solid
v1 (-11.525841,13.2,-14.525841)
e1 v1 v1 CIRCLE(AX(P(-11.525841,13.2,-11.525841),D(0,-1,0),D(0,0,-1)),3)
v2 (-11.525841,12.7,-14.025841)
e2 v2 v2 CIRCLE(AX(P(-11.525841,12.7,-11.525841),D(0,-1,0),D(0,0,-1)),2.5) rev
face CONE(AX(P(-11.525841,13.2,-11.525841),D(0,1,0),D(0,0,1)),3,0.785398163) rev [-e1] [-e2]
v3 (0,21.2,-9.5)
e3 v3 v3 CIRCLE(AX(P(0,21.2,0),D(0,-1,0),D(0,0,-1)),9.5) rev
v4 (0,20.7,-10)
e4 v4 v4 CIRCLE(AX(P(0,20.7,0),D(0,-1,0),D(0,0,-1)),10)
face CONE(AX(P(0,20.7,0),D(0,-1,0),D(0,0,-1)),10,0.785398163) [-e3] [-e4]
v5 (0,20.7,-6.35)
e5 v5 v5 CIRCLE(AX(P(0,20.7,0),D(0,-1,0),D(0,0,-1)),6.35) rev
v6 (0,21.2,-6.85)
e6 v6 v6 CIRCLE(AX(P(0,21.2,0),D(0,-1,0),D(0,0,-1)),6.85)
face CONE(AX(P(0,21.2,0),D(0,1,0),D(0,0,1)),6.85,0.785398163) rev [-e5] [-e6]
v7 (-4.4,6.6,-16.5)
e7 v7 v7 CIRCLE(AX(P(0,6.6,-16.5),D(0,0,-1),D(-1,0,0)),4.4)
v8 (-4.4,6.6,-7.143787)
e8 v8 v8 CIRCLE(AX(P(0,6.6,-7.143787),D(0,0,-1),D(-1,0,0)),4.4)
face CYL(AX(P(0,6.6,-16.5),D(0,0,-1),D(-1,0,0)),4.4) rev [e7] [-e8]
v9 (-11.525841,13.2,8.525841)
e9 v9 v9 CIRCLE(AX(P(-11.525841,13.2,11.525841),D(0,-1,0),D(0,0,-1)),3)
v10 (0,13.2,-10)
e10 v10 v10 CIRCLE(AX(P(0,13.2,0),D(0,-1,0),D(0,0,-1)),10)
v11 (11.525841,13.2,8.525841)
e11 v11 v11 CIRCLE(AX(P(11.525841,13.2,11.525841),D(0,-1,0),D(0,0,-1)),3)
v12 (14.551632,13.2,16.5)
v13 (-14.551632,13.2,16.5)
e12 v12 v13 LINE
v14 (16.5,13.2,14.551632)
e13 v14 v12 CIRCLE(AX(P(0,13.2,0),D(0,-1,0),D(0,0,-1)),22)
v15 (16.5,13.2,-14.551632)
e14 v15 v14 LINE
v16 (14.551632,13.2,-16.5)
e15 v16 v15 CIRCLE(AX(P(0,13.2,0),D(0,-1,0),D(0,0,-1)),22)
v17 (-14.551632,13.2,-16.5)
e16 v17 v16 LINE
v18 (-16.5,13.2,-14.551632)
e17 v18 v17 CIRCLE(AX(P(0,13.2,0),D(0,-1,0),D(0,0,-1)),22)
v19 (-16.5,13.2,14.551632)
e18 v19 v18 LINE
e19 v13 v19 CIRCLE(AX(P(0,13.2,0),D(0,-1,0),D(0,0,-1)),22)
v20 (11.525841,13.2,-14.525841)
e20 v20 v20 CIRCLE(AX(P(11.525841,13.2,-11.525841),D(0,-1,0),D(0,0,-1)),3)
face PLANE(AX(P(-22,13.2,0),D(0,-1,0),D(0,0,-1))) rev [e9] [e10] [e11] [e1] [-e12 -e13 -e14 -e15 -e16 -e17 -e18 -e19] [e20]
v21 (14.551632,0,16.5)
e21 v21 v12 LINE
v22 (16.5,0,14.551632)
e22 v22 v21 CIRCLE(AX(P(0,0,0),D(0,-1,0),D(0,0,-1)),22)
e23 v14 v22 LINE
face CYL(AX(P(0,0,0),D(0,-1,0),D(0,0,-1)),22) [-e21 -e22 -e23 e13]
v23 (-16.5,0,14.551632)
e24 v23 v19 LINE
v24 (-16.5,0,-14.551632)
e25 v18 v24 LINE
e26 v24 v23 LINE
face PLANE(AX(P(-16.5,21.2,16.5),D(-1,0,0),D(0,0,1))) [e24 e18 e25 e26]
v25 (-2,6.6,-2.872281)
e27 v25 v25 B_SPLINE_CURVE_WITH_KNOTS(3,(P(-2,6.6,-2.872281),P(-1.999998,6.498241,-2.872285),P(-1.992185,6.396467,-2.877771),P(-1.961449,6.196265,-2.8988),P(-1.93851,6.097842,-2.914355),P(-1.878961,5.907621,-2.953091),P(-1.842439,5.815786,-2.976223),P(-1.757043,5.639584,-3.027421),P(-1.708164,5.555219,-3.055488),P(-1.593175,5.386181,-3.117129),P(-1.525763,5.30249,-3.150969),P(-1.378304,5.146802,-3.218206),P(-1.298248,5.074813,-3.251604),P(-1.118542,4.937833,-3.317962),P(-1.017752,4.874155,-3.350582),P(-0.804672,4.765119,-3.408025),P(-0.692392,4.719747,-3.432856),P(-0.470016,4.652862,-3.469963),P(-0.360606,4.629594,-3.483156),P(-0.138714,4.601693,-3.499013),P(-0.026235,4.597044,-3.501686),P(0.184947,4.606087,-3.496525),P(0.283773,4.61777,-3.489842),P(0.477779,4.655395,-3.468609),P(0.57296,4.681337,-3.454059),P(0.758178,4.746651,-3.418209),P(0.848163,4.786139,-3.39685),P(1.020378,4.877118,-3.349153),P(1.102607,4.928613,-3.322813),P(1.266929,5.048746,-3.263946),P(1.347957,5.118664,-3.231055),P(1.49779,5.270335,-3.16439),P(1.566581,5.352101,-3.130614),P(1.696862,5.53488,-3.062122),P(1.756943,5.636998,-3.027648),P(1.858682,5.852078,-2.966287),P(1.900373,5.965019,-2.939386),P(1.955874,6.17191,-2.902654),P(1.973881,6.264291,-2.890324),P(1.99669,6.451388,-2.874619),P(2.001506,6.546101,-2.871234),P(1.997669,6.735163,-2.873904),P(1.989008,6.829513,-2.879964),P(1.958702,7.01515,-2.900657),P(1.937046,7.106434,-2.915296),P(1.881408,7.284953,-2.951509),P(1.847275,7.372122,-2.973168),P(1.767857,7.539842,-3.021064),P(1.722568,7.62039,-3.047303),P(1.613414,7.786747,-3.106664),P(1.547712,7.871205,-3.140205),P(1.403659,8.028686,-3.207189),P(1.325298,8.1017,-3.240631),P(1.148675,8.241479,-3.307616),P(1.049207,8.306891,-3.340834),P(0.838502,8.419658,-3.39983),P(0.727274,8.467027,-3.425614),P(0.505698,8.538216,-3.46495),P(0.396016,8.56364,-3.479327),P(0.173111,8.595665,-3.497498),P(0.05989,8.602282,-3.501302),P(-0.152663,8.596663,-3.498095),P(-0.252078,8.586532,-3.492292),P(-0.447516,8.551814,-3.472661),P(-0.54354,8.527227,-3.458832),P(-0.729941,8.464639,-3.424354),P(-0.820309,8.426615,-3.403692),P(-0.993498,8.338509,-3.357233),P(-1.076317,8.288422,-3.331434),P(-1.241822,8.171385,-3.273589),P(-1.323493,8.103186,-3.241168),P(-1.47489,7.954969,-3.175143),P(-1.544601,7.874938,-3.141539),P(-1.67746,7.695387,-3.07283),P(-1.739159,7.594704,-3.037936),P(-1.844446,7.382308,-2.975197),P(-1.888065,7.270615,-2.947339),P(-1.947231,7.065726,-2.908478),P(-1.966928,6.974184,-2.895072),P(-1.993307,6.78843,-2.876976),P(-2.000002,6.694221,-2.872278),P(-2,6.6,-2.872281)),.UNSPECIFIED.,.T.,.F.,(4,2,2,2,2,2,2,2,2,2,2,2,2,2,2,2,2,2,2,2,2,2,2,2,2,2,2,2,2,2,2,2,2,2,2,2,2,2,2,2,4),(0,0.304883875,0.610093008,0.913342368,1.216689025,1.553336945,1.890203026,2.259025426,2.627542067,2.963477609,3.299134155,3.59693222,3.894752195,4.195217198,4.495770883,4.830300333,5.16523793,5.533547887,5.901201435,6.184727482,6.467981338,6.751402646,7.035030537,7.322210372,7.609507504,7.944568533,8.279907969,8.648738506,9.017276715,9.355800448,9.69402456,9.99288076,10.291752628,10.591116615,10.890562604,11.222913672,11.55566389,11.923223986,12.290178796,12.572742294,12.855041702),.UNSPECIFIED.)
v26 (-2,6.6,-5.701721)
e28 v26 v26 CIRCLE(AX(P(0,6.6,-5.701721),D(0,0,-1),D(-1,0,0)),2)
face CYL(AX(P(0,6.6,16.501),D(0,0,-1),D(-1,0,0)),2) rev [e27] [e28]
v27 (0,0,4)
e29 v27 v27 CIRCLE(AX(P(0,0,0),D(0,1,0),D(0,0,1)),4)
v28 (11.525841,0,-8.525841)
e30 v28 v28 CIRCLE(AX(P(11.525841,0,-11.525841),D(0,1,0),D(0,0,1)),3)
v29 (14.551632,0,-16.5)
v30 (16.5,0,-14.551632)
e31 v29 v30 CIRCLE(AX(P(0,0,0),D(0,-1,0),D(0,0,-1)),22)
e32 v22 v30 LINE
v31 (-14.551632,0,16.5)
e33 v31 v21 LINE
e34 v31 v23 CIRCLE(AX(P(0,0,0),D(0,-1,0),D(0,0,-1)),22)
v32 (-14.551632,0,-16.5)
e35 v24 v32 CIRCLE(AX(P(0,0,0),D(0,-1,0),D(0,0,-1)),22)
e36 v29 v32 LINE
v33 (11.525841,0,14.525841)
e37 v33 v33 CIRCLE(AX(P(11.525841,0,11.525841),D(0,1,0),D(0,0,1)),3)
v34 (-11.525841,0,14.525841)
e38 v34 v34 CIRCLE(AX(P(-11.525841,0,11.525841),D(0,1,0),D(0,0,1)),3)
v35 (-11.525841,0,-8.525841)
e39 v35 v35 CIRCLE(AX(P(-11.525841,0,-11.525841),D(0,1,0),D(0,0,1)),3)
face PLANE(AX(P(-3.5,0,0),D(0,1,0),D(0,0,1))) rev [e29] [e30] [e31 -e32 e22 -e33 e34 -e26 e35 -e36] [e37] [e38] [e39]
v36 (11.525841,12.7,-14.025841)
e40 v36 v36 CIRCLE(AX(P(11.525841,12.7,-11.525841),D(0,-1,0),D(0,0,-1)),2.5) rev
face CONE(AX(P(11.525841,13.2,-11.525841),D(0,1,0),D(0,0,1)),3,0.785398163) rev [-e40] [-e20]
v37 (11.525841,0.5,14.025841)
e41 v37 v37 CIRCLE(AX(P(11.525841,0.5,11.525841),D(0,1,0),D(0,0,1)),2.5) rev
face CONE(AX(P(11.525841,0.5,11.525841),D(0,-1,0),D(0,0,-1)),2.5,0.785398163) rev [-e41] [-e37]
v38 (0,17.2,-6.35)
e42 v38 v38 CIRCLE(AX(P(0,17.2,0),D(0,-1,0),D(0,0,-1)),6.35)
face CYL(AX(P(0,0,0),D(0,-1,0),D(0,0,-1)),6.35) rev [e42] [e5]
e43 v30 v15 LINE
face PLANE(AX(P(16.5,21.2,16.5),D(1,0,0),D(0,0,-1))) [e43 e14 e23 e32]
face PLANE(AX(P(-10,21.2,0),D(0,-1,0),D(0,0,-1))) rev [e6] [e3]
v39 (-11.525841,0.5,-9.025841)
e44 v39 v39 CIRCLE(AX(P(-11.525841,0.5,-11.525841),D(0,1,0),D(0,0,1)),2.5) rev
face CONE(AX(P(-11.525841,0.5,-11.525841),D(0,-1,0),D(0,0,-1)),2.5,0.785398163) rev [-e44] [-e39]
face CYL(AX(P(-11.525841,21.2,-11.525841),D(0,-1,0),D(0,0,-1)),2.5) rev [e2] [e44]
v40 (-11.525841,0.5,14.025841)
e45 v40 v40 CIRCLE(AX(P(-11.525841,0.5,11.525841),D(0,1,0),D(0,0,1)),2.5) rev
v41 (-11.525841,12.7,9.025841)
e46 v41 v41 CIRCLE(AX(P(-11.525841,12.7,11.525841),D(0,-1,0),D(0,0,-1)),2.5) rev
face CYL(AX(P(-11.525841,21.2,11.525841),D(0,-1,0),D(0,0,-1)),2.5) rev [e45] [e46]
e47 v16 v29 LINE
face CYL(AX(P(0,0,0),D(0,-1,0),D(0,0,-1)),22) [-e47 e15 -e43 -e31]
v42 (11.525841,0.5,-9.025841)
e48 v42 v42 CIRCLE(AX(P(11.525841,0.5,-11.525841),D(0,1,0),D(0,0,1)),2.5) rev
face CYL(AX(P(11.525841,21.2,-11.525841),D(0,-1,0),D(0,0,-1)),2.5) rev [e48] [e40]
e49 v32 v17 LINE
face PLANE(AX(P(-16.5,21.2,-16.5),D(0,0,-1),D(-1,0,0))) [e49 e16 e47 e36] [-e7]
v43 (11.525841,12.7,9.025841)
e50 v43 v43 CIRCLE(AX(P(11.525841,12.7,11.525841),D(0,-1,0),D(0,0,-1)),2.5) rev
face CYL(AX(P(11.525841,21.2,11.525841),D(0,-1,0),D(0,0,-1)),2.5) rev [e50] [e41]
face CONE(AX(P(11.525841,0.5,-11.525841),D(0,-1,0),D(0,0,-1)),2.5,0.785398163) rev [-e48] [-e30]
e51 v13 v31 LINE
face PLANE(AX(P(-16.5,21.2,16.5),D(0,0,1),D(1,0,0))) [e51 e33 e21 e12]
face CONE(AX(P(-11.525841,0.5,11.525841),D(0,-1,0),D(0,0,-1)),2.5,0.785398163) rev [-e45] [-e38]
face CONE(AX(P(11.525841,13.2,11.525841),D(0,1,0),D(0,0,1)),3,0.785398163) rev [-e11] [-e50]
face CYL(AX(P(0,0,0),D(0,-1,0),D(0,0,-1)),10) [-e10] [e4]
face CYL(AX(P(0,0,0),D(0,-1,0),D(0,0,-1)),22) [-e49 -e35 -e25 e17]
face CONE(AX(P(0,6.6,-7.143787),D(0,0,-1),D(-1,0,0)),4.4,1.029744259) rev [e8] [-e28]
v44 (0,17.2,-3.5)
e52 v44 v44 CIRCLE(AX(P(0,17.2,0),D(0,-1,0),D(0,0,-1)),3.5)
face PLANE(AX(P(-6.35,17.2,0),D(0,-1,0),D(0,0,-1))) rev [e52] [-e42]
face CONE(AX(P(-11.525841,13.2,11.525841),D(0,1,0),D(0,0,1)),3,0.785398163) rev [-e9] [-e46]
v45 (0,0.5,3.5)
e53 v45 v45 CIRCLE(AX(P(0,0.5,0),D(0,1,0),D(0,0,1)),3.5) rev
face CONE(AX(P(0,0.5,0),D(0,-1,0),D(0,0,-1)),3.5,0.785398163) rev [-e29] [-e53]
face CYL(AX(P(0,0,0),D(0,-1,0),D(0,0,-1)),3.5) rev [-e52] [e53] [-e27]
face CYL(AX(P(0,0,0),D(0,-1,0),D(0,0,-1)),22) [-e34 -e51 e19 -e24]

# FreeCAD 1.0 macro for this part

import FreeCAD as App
import Part
import Sketcher
from FreeCAD import Vector
Q = App.Units.Quantity


def edges_at(feature, points):
    """Names of the edges that pass closest to the given points."""
    edges = feature.Shape.Edges
    near = lambda p: min(range(len(edges)), key=lambda i: edges[i].distToShape(Part.Vertex(*p))[0])
    return sorted({f"Edge{near(p) + 1}" for p in points})


def add_polygon(sketch, points):
    """Adds a closed chain of lines whose ends are joined by coincident constraints."""
    first, n = sketch.GeometryCount, len(points)
    for a, b in zip(points, points[1:] + points[:1]):
        sketch.addGeometry(Part.LineSegment(App.Vector(*a, 0), App.Vector(*b, 0)), False)
    for i in range(n):
        sketch.addConstraint(Sketcher.Constraint("Coincident", first + i, 2, first + (i + 1) % n, 1))

doc = App.newDocument("Part")
body = doc.addObject("PartDesign::Body", "Body")

sketch1 = doc.addObject("Sketcher::SketchObject", "Sketch")
body.addObject(sketch1)
sketch1.AttachmentSupport = (doc.XY_Plane, [""])
sketch1.MapMode = "FlatFace"
add_polygon(sketch1, [(-22, 0), (-3.5, 0), (-3.5, 17.2), (-6.35, 17.2), (-6.35, 21.2), (-10, 21.2), (-10, 13.2), (-22, 13.2)])
sketch1.addConstraint(Sketcher.Constraint("Horizontal", 0))
sketch1.addConstraint(Sketcher.Constraint("Vertical", 1))
sketch1.addConstraint(Sketcher.Constraint("Horizontal", 2))
sketch1.addConstraint(Sketcher.Constraint("Vertical", 3))
sketch1.addConstraint(Sketcher.Constraint("Horizontal", 4))
sketch1.addConstraint(Sketcher.Constraint("Vertical", 5))
sketch1.addConstraint(Sketcher.Constraint("Horizontal", 6))
sketch1.addConstraint(Sketcher.Constraint("Vertical", 7))
sketch1.addConstraint(Sketcher.Constraint("PointOnObject", 0, 2, -1))
sketch1.addConstraint(Sketcher.Constraint("DistanceX", 6, 2, 6, 1, Q("12 mm")))
sketch1.addConstraint(Sketcher.Constraint("DistanceY", 3, 1, 3, 2, Q("4 mm")))
sketch1.addConstraint(Sketcher.Constraint("DistanceY", 5, 2, 5, 1, Q("8 mm")))
sketch1.addConstraint(Sketcher.Constraint("DistanceX", 0, 1, 0, 2, Q("18.5 mm")))
sketch1.addConstraint(Sketcher.Constraint("DistanceY", 1, 1, 1, 2, Q("17.2 mm")))
sketch1.addConstraint(Sketcher.Constraint("DistanceX", 4, 2, -1, 1, Q("10 mm")))
sketch1.addConstraint(Sketcher.Constraint("DistanceX", 2, 2, 2, 1, Q("2.85 mm")))
revolution = doc.addObject("PartDesign::Revolution", "Revolution")
body.addObject(revolution)
revolution.Profile = sketch1
revolution.ReferenceAxis = (sketch1, ["V_Axis"])
revolution.Angle = 360

sketch2 = doc.addObject("Sketcher::SketchObject", "Sketch001")
body.addObject(sketch2)
sketch2.AttachmentSupport = (doc.XZ_Plane, [""])
sketch2.MapMode = "FlatFace"
add_polygon(sketch2, [(-29.53392, 27.809004), (-29.53392, -29.071138), (31.553333, -29.071138), (31.553333, 27.809004)])
add_polygon(sketch2, [(16.5, -16.5), (-16.5, -16.5), (-16.5, 16.5), (16.5, 16.5)])
sketch2.addConstraint(Sketcher.Constraint("Vertical", 0))
sketch2.addConstraint(Sketcher.Constraint("Horizontal", 1))
sketch2.addConstraint(Sketcher.Constraint("Vertical", 2))
sketch2.addConstraint(Sketcher.Constraint("Horizontal", 3))
sketch2.addConstraint(Sketcher.Constraint("Horizontal", 4))
sketch2.addConstraint(Sketcher.Constraint("Vertical", 5))
sketch2.addConstraint(Sketcher.Constraint("Horizontal", 6))
sketch2.addConstraint(Sketcher.Constraint("Vertical", 7))
sketch2.addConstraint(Sketcher.Constraint("Symmetric", 4, 2, 6, 2, -1, 1))
sketch2.addConstraint(Sketcher.Constraint("Equal", 6, 5))
sketch2.addConstraint(Sketcher.Constraint("DistanceX", 4, 2, 4, 1, Q("33 mm")))
sketch2.addConstraint(Sketcher.Constraint("DistanceY", 0, 2, 0, 1, Q("56.880142 mm")))
sketch2.addConstraint(Sketcher.Constraint("DistanceX", 1, 1, 1, 2, Q("61.087253 mm")))
sketch2.addConstraint(Sketcher.Constraint("DistanceX", 0, 2, -1, 1, Q("29.53392 mm")))
sketch2.addConstraint(Sketcher.Constraint("DistanceY", 0, 2, -1, 1, Q("29.071138 mm")))
pocket1 = doc.addObject("PartDesign::Pocket", "Pocket")
body.addObject(pocket1)
pocket1.Profile = sketch2
pocket1.Type = "ThroughAll"

sketch3 = doc.addObject("Sketcher::SketchObject", "Sketch002")
body.addObject(sketch3)
sketch3.AttachmentSupport = (doc.XZ_Plane, [""])
sketch3.MapMode = "FlatFace"
sketch3.addGeometry(Part.Circle(Vector(-11.525841, 11.525841, 0), Vector(0, 0, 1), 2.5), False)
sketch3.addGeometry(Part.Circle(Vector(11.525841, 11.525841, 0), Vector(0, 0, 1), 2.5), False)
sketch3.addGeometry(Part.Circle(Vector(-11.525841, -11.525841, 0), Vector(0, 0, 1), 2.5), False)
sketch3.addGeometry(Part.Circle(Vector(11.525841, -11.525841, 0), Vector(0, 0, 1), 2.5), False)
sketch3.addConstraint(Sketcher.Constraint("Equal", 0, 1))
sketch3.addConstraint(Sketcher.Constraint("Equal", 1, 2))
sketch3.addConstraint(Sketcher.Constraint("Equal", 2, 3))
sketch3.addConstraint(Sketcher.Constraint("Symmetric", 1, 3, 2, 3, -1, 1))
sketch3.addConstraint(Sketcher.Constraint("Symmetric", 0, 3, 3, 3, -1, 1))
sketch3.addConstraint(Sketcher.Constraint("Symmetric", 0, 3, 1, 3, -2))
sketch3.addConstraint(Sketcher.Constraint("Diameter", 0, Q("5 mm")))
sketch3.addConstraint(Sketcher.Constraint("DistanceX", 0, 3, -1, 1, Q("11.525841 mm")))
sketch3.addConstraint(Sketcher.Constraint("DistanceY", -1, 1, 0, 3, Q("11.525841 mm")))
pocket2 = doc.addObject("PartDesign::Pocket", "Pocket001")
body.addObject(pocket2)
pocket2.Profile = sketch3
pocket2.Type = "ThroughAll"

sketch4 = doc.addObject("Sketcher::SketchObject", "Sketch003")
body.addObject(sketch4)
sketch4.AttachmentSupport = (doc.XY_Plane, [""])
sketch4.MapMode = "FlatFace"
sketch4.AttachmentOffset = App.Placement(Vector(0, 0, -16.5), App.Rotation())
sketch4.addGeometry(Part.Circle(Vector(0, 6.6, 0), Vector(0, 0, 1), 2), False)
sketch4.addConstraint(Sketcher.Constraint("PointOnObject", 0, 3, -2))
sketch4.addConstraint(Sketcher.Constraint("Diameter", 0, Q("4 mm")))
sketch4.addConstraint(Sketcher.Constraint("DistanceY", -1, 1, 0, 3, Q("6.6 mm")))
pocket3 = doc.addObject("PartDesign::Pocket", "Pocket002")
body.addObject(pocket3)
pocket3.Profile = sketch4
pocket3.Type = "UpToFirst"
pocket3.Reversed = True

sketch5 = doc.addObject("Sketcher::SketchObject", "Sketch004")
body.addObject(sketch5)
sketch5.AttachmentSupport = (doc.XY_Plane, [""])
sketch5.MapMode = "FlatFace"
sketch5.AttachmentOffset = App.Placement(Vector(0, 0, -16.5), App.Rotation())
sketch5.addGeometry(Part.Circle(Vector(0, 6.6, 0), Vector(0, 0, 1), 4.4), False)
sketch5.addConstraint(Sketcher.Constraint("PointOnObject", 0, 3, -2))
sketch5.addConstraint(Sketcher.Constraint("Diameter", 0, Q("8.8 mm")))
sketch5.addConstraint(Sketcher.Constraint("DistanceY", -1, 1, 0, 3, Q("6.6 mm")))
doc.recompute()
hole = doc.addObject("PartDesign::Hole", "Hole")
body.addObject(hole)
hole.Profile = sketch5
hole.ThreadType = "None"
hole.Diameter = 8.8
hole.DepthType = "Dimension"
hole.Depth = 9.356213
hole.DrillPoint = "Angled"
hole.DrillPointAngle = 118
hole.Reversed = True
doc.recompute()

chamfer = doc.addObject("PartDesign::Chamfer", "Chamfer")
body.addObject(chamfer)
chamfer.Base = (hole, edges_at(hole, [
    (6.35, 21.2, 0),
    (3.5, 0, 0),
    (-14.026, 13.2, -11.526),
    (-14.026, 0, -11.526),
    (9.026, 13.2, 11.526),
    (9.026, 0, 11.526),
    (9.026, 13.2, -11.526),
    (9.026, 0, -11.526),
    (-14.026, 13.2, 11.526),
    (-14.026, 0, 11.526),
    (10, 21.2, 0),
]))
chamfer.Size = 0.5

doc.recompute()
